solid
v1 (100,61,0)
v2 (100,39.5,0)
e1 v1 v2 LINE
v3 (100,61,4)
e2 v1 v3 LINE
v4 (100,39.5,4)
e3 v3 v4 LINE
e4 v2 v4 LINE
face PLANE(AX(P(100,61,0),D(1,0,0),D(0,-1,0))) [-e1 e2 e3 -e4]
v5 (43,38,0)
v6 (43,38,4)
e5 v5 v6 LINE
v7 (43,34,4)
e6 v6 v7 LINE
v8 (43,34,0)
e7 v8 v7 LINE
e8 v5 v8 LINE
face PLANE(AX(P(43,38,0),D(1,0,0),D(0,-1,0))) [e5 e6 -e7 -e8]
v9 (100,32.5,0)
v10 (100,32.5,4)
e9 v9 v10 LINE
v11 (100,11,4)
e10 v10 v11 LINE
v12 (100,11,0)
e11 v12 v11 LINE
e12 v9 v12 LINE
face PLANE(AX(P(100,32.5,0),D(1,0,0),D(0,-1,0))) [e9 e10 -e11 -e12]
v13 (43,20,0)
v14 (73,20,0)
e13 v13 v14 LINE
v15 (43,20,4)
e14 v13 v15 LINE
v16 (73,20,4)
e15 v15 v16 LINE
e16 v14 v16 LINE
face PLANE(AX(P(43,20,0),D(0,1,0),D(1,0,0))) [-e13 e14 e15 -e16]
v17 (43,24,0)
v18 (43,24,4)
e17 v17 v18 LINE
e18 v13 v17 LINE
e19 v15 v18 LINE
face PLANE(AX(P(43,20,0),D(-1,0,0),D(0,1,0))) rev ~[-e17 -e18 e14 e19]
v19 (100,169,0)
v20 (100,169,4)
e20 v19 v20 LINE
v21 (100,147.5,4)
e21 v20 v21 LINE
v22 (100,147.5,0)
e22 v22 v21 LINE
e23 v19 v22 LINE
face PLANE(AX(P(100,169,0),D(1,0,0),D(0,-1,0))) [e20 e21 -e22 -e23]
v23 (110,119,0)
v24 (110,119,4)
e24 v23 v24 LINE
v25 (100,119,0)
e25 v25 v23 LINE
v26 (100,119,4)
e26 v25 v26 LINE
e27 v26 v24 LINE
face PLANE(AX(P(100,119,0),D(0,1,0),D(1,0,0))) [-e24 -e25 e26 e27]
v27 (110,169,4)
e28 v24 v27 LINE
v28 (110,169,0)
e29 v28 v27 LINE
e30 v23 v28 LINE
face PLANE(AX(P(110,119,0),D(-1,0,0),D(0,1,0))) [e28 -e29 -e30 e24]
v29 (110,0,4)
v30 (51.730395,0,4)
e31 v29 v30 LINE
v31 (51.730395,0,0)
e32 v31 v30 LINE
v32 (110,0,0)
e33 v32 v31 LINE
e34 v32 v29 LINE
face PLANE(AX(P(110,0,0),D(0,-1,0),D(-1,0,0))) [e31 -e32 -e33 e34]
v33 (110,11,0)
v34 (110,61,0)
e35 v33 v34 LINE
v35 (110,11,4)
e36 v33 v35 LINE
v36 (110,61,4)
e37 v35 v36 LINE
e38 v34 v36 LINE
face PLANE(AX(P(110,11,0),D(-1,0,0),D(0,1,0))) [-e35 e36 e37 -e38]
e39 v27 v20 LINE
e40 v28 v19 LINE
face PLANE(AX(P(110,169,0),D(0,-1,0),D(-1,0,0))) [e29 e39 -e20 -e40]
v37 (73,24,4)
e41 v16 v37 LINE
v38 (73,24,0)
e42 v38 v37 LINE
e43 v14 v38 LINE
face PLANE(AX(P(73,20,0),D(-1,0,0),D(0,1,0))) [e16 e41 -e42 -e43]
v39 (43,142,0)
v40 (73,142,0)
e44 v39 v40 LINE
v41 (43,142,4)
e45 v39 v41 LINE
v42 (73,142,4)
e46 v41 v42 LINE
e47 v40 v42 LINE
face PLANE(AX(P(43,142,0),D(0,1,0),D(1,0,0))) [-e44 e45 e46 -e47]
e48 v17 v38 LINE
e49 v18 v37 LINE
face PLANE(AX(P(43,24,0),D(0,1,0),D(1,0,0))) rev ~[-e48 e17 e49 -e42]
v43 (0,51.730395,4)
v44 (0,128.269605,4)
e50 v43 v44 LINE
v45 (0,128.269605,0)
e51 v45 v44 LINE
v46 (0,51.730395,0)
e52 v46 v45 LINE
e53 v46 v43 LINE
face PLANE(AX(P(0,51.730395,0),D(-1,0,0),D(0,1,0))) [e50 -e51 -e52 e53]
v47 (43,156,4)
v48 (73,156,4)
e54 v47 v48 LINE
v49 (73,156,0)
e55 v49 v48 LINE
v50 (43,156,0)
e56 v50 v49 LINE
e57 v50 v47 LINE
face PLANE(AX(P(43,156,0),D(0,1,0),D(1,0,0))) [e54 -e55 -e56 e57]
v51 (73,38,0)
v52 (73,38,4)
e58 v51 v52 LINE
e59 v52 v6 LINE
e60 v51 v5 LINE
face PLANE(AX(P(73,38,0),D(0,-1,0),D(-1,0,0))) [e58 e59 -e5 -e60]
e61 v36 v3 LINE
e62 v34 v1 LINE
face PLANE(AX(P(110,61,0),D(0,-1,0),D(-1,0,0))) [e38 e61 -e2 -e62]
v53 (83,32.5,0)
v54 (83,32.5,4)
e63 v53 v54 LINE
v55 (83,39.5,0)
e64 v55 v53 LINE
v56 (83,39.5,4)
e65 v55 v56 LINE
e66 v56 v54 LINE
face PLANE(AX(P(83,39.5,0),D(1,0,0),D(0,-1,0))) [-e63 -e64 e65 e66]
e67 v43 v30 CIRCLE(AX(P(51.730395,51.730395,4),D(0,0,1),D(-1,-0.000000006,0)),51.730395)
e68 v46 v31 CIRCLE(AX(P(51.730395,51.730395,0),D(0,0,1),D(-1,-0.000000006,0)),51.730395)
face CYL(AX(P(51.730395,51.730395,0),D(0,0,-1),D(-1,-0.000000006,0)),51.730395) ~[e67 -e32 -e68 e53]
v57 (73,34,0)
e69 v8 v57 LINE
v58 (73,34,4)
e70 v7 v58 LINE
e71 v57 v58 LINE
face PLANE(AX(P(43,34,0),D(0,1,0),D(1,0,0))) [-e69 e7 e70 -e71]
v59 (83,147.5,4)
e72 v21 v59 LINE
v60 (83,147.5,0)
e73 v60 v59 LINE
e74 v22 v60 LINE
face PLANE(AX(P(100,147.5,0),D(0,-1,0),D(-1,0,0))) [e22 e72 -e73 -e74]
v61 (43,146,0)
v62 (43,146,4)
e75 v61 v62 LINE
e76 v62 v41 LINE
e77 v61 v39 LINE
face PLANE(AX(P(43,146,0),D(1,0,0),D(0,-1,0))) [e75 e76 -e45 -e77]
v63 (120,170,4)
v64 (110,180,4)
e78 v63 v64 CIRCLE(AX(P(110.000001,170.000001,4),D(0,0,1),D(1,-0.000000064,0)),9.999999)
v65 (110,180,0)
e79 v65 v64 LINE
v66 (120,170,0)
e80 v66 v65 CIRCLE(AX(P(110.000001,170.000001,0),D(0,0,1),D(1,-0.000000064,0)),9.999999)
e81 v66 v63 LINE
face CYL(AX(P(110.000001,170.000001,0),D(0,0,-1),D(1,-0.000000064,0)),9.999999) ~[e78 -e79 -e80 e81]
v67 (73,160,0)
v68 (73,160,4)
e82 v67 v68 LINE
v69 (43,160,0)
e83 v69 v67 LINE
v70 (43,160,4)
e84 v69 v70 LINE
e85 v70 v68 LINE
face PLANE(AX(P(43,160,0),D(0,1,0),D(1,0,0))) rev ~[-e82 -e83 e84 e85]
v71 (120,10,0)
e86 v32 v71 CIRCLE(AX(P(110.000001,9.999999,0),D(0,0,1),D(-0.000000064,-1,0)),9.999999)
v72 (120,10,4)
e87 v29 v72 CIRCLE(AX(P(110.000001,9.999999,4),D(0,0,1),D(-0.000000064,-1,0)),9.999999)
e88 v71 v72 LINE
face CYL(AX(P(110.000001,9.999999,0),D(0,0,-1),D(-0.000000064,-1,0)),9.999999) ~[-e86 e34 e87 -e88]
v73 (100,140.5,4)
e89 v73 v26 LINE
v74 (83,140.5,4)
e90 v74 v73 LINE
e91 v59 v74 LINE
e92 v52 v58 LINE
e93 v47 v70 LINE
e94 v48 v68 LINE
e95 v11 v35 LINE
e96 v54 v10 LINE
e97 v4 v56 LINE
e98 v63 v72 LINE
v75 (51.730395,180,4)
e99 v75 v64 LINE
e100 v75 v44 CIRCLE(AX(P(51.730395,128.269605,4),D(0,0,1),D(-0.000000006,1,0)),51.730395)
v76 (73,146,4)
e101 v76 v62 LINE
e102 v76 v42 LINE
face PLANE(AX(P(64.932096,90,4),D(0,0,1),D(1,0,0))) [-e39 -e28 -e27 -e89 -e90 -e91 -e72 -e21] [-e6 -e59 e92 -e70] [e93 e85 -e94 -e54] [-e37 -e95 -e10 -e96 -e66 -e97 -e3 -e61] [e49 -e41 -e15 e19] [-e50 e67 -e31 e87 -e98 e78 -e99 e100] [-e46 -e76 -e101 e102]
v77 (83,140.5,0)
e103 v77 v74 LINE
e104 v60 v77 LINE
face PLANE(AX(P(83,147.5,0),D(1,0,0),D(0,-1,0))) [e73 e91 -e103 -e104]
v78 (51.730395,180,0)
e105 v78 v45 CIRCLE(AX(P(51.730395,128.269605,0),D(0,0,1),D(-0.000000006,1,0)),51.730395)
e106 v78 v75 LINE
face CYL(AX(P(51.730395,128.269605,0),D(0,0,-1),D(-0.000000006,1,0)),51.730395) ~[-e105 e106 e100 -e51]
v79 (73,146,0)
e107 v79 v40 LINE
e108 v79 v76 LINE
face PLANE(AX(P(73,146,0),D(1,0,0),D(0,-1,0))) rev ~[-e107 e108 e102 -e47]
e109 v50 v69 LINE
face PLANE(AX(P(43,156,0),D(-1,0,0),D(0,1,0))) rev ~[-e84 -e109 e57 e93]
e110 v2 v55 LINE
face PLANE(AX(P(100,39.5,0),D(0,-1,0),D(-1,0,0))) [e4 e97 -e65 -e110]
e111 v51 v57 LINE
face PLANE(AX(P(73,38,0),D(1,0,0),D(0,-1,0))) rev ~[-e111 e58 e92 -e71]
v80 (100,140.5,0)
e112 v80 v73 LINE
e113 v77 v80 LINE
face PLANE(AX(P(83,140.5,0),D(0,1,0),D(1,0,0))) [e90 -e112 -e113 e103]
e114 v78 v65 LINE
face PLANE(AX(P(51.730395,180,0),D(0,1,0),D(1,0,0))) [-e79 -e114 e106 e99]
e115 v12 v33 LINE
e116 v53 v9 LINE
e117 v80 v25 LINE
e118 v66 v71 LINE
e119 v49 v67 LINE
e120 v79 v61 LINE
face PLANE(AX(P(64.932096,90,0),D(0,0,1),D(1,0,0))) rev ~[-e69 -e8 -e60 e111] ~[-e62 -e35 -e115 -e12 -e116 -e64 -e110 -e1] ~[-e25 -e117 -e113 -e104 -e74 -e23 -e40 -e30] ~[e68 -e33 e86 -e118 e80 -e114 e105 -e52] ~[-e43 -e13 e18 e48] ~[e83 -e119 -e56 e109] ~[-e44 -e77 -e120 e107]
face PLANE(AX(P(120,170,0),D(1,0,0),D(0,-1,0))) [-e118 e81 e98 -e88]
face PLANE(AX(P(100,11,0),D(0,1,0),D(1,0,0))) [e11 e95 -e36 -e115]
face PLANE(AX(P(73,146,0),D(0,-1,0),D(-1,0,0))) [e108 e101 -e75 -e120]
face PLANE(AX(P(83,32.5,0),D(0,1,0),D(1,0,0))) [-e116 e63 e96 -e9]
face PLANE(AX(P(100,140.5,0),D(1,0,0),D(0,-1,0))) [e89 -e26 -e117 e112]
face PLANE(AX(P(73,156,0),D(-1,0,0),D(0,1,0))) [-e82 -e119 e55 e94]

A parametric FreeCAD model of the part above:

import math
import FreeCAD as App
import Part
import Sketcher
from FreeCAD import Vector


def add_polygon(sketch, points):
    """Adds a closed chain of lines whose ends are joined by coincident constraints."""
    first, n = sketch.GeometryCount, len(points)
    for a, b in zip(points, points[1:] + points[:1]):
        sketch.addGeometry(Part.LineSegment(App.Vector(*a, 0), App.Vector(*b, 0)), False)
    for i in range(n):
        sketch.addConstraint(Sketcher.Constraint("Coincident", first + i, 2, first + (i + 1) % n, 1))

doc = App.newDocument("Part")
body = doc.addObject("PartDesign::Body", "Body")

# Sketch on XY plane
sketch1 = body.newObject("Sketcher::SketchObject", "Sketch")
sketch1.AttachmentSupport = (doc.getObject("XY_Plane"), [""])
sketch1.MapMode = "FlatFace"
sketch1.addGeometry(Part.ArcOfCircle(Part.Circle(Vector(51.7, 128.3, 0), Vector(0, 0, 1), 51.7), math.radians(90), math.radians(180)), False)  # 0
sketch1.addGeometry(Part.LineSegment(Vector(0, 128.3, 0), Vector(0, 51.7, 0)), False)  # 1
sketch1.addGeometry(Part.ArcOfCircle(Part.Circle(Vector(51.7, 51.7, 0), Vector(0, 0, 1), 51.7), math.radians(-180), math.radians(-90)), False)  # 2
sketch1.addGeometry(Part.LineSegment(Vector(51.7, 0, 0), Vector(110, 0, 0)), False)  # 3
sketch1.addGeometry(Part.ArcOfCircle(Part.Circle(Vector(110, 10, 0), Vector(0, 0, 1), 10), math.radians(-90), math.radians(0)), False)  # 4
sketch1.addGeometry(Part.LineSegment(Vector(120, 10, 0), Vector(120, 170, 0)), False)  # 5
sketch1.addGeometry(Part.ArcOfCircle(Part.Circle(Vector(110, 170, 0), Vector(0, 0, 1), 10), math.radians(0), math.radians(90)), False)  # 6
sketch1.addGeometry(Part.LineSegment(Vector(110, 180, 0), Vector(51.7, 180, 0)), False)  # 7
add_polygon(sketch1, [(73, 20), (43, 20), (43, 24), (73, 24)])  # lines 8-11
add_polygon(sketch1, [(43, 38), (73, 38), (73, 34), (43, 34)])  # lines 12-15
add_polygon(sketch1, [(100, 39.5), (100, 61), (110, 61), (110, 11), (100, 11), (100, 32.5), (83, 32.5), (83, 39.5)])  # lines 16-23
add_polygon(sketch1, [(73, 146), (73, 142), (43, 142), (43, 146)])  # lines 24-27
add_polygon(sketch1, [(73, 156), (43, 156), (43, 160), (73, 160)])  # lines 28-31
add_polygon(sketch1, [(110, 119), (100, 119), (100, 140.5), (83, 140.5), (83, 147.5), (100, 147.5), (100, 169), (110, 169)])  # lines 32-39
sketch1.addConstraint(Sketcher.Constraint("Tangent", 0, 2, 1, 1))
sketch1.addConstraint(Sketcher.Constraint("Tangent", 1, 2, 2, 1))
sketch1.addConstraint(Sketcher.Constraint("Tangent", 2, 2, 3, 1))
sketch1.addConstraint(Sketcher.Constraint("Tangent", 3, 2, 4, 1))
sketch1.addConstraint(Sketcher.Constraint("Tangent", 4, 2, 5, 1))
sketch1.addConstraint(Sketcher.Constraint("Tangent", 5, 2, 6, 1))
sketch1.addConstraint(Sketcher.Constraint("Tangent", 6, 2, 7, 1))
sketch1.addConstraint(Sketcher.Constraint("Tangent", 7, 2, 0, 1))
sketch1.addConstraint(Sketcher.Constraint("Vertical", 1))
sketch1.addConstraint(Sketcher.Constraint("Horizontal", 3))
sketch1.addConstraint(Sketcher.Constraint("Vertical", 5))
sketch1.addConstraint(Sketcher.Constraint("Horizontal", 7))
sketch1.addConstraint(Sketcher.Constraint("Horizontal", 8))
sketch1.addConstraint(Sketcher.Constraint("Vertical", 9))
sketch1.addConstraint(Sketcher.Constraint("Horizontal", 10))
sketch1.addConstraint(Sketcher.Constraint("Vertical", 11))
sketch1.addConstraint(Sketcher.Constraint("Horizontal", 12))
sketch1.addConstraint(Sketcher.Constraint("Vertical", 13))
sketch1.addConstraint(Sketcher.Constraint("Horizontal", 14))
sketch1.addConstraint(Sketcher.Constraint("Vertical", 15))
sketch1.addConstraint(Sketcher.Constraint("Vertical", 16))
sketch1.addConstraint(Sketcher.Constraint("Horizontal", 17))
sketch1.addConstraint(Sketcher.Constraint("Vertical", 18))
sketch1.addConstraint(Sketcher.Constraint("Horizontal", 19))
sketch1.addConstraint(Sketcher.Constraint("Vertical", 20))
sketch1.addConstraint(Sketcher.Constraint("Horizontal", 21))
sketch1.addConstraint(Sketcher.Constraint("Vertical", 22))
sketch1.addConstraint(Sketcher.Constraint("Horizontal", 23))
sketch1.addConstraint(Sketcher.Constraint("Vertical", 24))
sketch1.addConstraint(Sketcher.Constraint("Horizontal", 25))
sketch1.addConstraint(Sketcher.Constraint("Vertical", 26))
sketch1.addConstraint(Sketcher.Constraint("Horizontal", 27))
sketch1.addConstraint(Sketcher.Constraint("Horizontal", 28))
sketch1.addConstraint(Sketcher.Constraint("Vertical", 29))
sketch1.addConstraint(Sketcher.Constraint("Horizontal", 30))
sketch1.addConstraint(Sketcher.Constraint("Vertical", 31))
sketch1.addConstraint(Sketcher.Constraint("Horizontal", 32))
sketch1.addConstraint(Sketcher.Constraint("Vertical", 33))
sketch1.addConstraint(Sketcher.Constraint("Horizontal", 34))
sketch1.addConstraint(Sketcher.Constraint("Vertical", 35))
sketch1.addConstraint(Sketcher.Constraint("Horizontal", 36))
sketch1.addConstraint(Sketcher.Constraint("Vertical", 37))
sketch1.addConstraint(Sketcher.Constraint("Horizontal", 38))
sketch1.addConstraint(Sketcher.Constraint("Vertical", 39))
sketch1.addConstraint(Sketcher.Constraint("Equal", 0, 2))
sketch1.addConstraint(Sketcher.Constraint("Equal", 4, 6))
sketch1.addConstraint(Sketcher.Constraint("PointOnObject", 0, 2, -2))
sketch1.addConstraint(Sketcher.Constraint("PointOnObject", 2, 2, -1))
sketch1.addConstraint(Sketcher.Constraint("Vertical", 11, 2, 12, 2))
sketch1.addConstraint(Sketcher.Constraint("Vertical", 9, 2, 14, 2))
sketch1.addConstraint(Sketcher.Constraint("Vertical", 6, 2, 17, 2))
sketch1.addConstraint(Sketcher.Constraint("Vertical", 16, 2, 19, 2))
sketch1.addConstraint(Sketcher.Constraint("Vertical", 13, 2, 24, 2))
sketch1.addConstraint(Sketcher.Constraint("Vertical", 15, 2, 25, 2))
sketch1.addConstraint(Sketcher.Constraint("Vertical", 26, 2, 28, 2))
sketch1.addConstraint(Sketcher.Constraint("Vertical", 27, 2, 30, 2))
sketch1.addConstraint(Sketcher.Constraint("Vertical", 23, 2, 32, 2))
sketch1.addConstraint(Sketcher.Constraint("Vertical", 22, 2, 34, 2))
sketch1.addConstraint(Sketcher.Constraint("Vertical", 33, 2, 36, 2))
sketch1.addConstraint(Sketcher.Constraint("Vertical", 18, 2, 38, 2))
sketch1.addConstraint(Sketcher.Constraint("Equal", 11, 13))
sketch1.addConstraint(Sketcher.Constraint("Equal", 16, 20))
sketch1.addConstraint(Sketcher.Constraint("Equal", 15, 24))
sketch1.addConstraint(Sketcher.Constraint("Equal", 26, 29))
sketch1.addConstraint(Sketcher.Constraint("Equal", 20, 33))
sketch1.addConstraint(Sketcher.Constraint("Equal", 22, 35))
sketch1.addConstraint(Sketcher.Constraint("Equal", 33, 37))
sketch1.addConstraint(Sketcher.Constraint("Radius", 4, 9.999999))
sketch1.addConstraint(Sketcher.Constraint("DistanceX", 8, 2, 8, 1, 30.0))
sketch1.addConstraint(Sketcher.Constraint("DistanceX", 17, 1, 17, 2, 10.0))
sketch1.addConstraint(Sketcher.Constraint("DistanceX", 21, 2, 21, 1, 17.0))
sketch1.addConstraint(Sketcher.Constraint("DistanceY", 5, 1, 5, 2, 160.0))
sketch1.addConstraint(Sketcher.Constraint("DistanceY", 9, 1, 9, 2, 4.0))
sketch1.addConstraint(Sketcher.Constraint("DistanceY", 18, 2, 18, 1, 50.0))
sketch1.addConstraint(Sketcher.Constraint("DistanceY", 22, 1, 22, 2, 7.0))
sketch1.addConstraint(Sketcher.Constraint("DistanceX", -1, 1, 4, 3, 110.000001))
sketch1.addConstraint(Sketcher.Constraint("DistanceX", -1, 1, 8, 2, 43.0))
sketch1.addConstraint(Sketcher.Constraint("DistanceY", -1, 1, 8, 2, 20.0))
sketch1.addConstraint(Sketcher.Constraint("DistanceY", -1, 1, 12, 2, 38.0))
sketch1.addConstraint(Sketcher.Constraint("DistanceY", -1, 1, 16, 2, 61.0))
sketch1.addConstraint(Sketcher.Constraint("DistanceY", -1, 1, 24, 2, 142.0))
sketch1.addConstraint(Sketcher.Constraint("DistanceY", -1, 1, 28, 2, 156.0))
sketch1.addConstraint(Sketcher.Constraint("DistanceY", -1, 1, 32, 2, 119.0))
sketch1.addConstraint(Sketcher.Constraint("Radius", 0, 51.730395))
pad1 = body.newObject("PartDesign::Pad", "Pad")
pad1.Profile = sketch1
pad1.Length = 4

doc.recompute()
